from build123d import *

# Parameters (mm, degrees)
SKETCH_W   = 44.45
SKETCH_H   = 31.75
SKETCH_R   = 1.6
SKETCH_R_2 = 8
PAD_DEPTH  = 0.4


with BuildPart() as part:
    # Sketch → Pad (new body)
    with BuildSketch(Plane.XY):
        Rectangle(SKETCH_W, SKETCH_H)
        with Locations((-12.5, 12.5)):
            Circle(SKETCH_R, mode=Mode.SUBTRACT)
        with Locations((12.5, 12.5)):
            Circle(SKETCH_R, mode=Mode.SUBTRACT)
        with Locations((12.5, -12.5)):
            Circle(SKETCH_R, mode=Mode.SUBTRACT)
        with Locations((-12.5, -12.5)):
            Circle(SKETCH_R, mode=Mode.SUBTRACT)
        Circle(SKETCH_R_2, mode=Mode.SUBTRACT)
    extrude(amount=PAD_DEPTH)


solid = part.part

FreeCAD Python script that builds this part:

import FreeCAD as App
import Part
import Sketcher


def add_polygon(sketch, points):
    """Adds a closed chain of lines whose ends are joined by coincident constraints."""
    first, n = sketch.GeometryCount, len(points)
    for a, b in zip(points, points[1:] + points[:1]):
        sketch.addGeometry(Part.LineSegment(App.Vector(*a, 0), App.Vector(*b, 0)), False)
    for i in range(n):
        sketch.addConstraint(Sketcher.Constraint("Coincident", first + i, 2, first + (i + 1) % n, 1))

doc = App.newDocument("Part")
body = doc.addObject("PartDesign::Body", "Body")

# Sketch on XY plane
sketch1 = body.newObject("Sketcher::SketchObject", "Sketch")
sketch1.AttachmentSupport = (doc.getObject("XY_Plane"), [""])
sketch1.MapMode = "FlatFace"
add_polygon(sketch1, [(-22.2, 15.9), (-22.2, -15.9), (22.2, -15.9), (22.2, 15.9)])  # lines 0-3
sketch1.addGeometry(Part.Circle(App.Vector(-12.5, -12.5, 0), App.Vector(0, 0, 1), 1.6), False)  # 4
sketch1.addGeometry(Part.Circle(App.Vector(12.5, -12.5, 0), App.Vector(0, 0, 1), 1.6), False)  # 5
sketch1.addGeometry(Part.Circle(App.Vector(-12.5, 12.5, 0), App.Vector(0, 0, 1), 1.6), False)  # 6
sketch1.addGeometry(Part.Circle(App.Vector(0, 0, 0), App.Vector(0, 0, 1), 8), False)  # 7
sketch1.addGeometry(Part.Circle(App.Vector(12.5, 12.5, 0), App.Vector(0, 0, 1), 1.6), False)  # 8
sketch1.addConstraint(Sketcher.Constraint("Vertical", 0))
sketch1.addConstraint(Sketcher.Constraint("Horizontal", 1))
sketch1.addConstraint(Sketcher.Constraint("Vertical", 2))
sketch1.addConstraint(Sketcher.Constraint("Horizontal", 3))
sketch1.addConstraint(Sketcher.Constraint("Coincident", 7, 3, -1, 1))
sketch1.addConstraint(Sketcher.Constraint("Equal", 4, 5))
sketch1.addConstraint(Sketcher.Constraint("Equal", 5, 6))
sketch1.addConstraint(Sketcher.Constraint("Equal", 6, 8))
sketch1.addConstraint(Sketcher.Constraint("Symmetric", 5, 3, 6, 3, -1, 1))
sketch1.addConstraint(Sketcher.Constraint("Symmetric", 4, 3, 8, 3, -1, 1))
sketch1.addConstraint(Sketcher.Constraint("Symmetric", 0, 2, 2, 2, -1, 1))
sketch1.addConstraint(Sketcher.Constraint("Symmetric", 4, 3, 5, 3, -2))
sketch1.addConstraint(Sketcher.Constraint("Diameter", 7, 16.0))
sketch1.addConstraint(Sketcher.Constraint("Diameter", 4, 3.2))
sketch1.addConstraint(Sketcher.Constraint("DistanceX", 4, 3, 5, 3, 25.0))
sketch1.addConstraint(Sketcher.Constraint("DistanceY", 4, 3, 6, 3, 25.0))
sketch1.addConstraint(Sketcher.Constraint("DistanceX", 1, 1, 1, 2, 44.45))
sketch1.addConstraint(Sketcher.Constraint("DistanceY", 0, 2, 0, 1, 31.75))
pad1 = body.newObject("PartDesign::Pad", "Pad")
pad1.Profile = sketch1
pad1.Length = 0.4

doc.recompute()
